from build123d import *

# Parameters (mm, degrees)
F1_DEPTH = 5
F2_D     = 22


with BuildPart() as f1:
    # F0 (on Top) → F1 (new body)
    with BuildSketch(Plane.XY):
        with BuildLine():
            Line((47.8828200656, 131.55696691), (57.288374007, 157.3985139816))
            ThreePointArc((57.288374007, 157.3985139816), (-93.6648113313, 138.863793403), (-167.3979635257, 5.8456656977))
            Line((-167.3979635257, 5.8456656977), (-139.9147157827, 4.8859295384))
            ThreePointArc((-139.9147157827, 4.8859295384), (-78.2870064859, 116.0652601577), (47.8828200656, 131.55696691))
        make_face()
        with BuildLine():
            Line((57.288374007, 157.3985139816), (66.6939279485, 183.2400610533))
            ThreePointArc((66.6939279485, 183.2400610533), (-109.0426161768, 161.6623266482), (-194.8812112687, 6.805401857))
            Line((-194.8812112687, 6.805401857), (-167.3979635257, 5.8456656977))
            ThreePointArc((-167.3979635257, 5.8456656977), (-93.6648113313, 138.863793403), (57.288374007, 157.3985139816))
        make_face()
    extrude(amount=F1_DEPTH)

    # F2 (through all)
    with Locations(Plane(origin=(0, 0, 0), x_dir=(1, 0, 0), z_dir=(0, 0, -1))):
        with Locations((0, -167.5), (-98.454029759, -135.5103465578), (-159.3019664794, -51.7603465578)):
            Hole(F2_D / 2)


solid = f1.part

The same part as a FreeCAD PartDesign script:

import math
import FreeCAD as App
import Part
import Sketcher
from FreeCAD import Vector
Q = App.Units.Quantity

doc = App.newDocument("Part")
body = doc.addObject("PartDesign::Body", "Body")

# Sketch on XY plane
sketch1 = body.newObject("Sketcher::SketchObject", "Sketch")
sketch1.AttachmentSupport = (doc.getObject("XY_Plane"), [""])
sketch1.MapMode = "FlatFace"
sketch1.addGeometry(Part.LineSegment(Vector(48, 132, 0), Vector(57, 157, 0)), False)
sketch1.addGeometry(Part.LineSegment(Vector(57, 157, 0), Vector(67, 183, 0)), False)
sketch1.addGeometry(Part.ArcOfCircle(Part.Circle(Vector(0, 0, 0), Vector(0, 0, 1), 195), math.radians(70), math.radians(178)), False)
sketch1.addGeometry(Part.LineSegment(Vector(-195, 7, 0), Vector(-140, 5, 0)), False)
sketch1.addGeometry(Part.ArcOfCircle(Part.Circle(Vector(0, 0, 0), Vector(0, 0, 1), 140), math.radians(70), math.radians(178)), False)
sketch1.addConstraint(Sketcher.Constraint("Coincident", 0, 2, 1, 1))
sketch1.addConstraint(Sketcher.Constraint("Coincident", 1, 2, 2, 1))
sketch1.addConstraint(Sketcher.Constraint("Coincident", 2, 2, 3, 1))
sketch1.addConstraint(Sketcher.Constraint("Coincident", 3, 2, 4, 2))
sketch1.addConstraint(Sketcher.Constraint("Coincident", 4, 1, 0, 1))
sketch1.addConstraint(Sketcher.Constraint("Coincident", 2, 3, -1, 1))
sketch1.addConstraint(Sketcher.Constraint("Coincident", 4, 3, -1, 1))
sketch1.addConstraint(Sketcher.Constraint("Parallel", 0, 1))
sketch1.addConstraint(Sketcher.Constraint("Equal", 0, 1))
sketch1.addConstraint(Sketcher.Constraint("Radius", 2, Q("195 mm")))
sketch1.addConstraint(Sketcher.Constraint("Radius", 4, Q("140 mm")))
sketch1.addConstraint(Sketcher.Constraint("Angle", 0, Q("70 deg")))
sketch1.addConstraint(Sketcher.Constraint("Angle", 3, Q("-2 deg")))
sketch1.addConstraint(Sketcher.Constraint("DistanceY", -1, 1, 2, 2, Q("6.805402 mm")))
sketch1.addConstraint(Sketcher.Constraint("DistanceY", -1, 1, 1, 2, Q("183.240061 mm")))
pad1 = body.newObject("PartDesign::Pad", "Pad")
pad1.Profile = sketch1
pad1.Length = 5

# Sketch on XY plane
sketch2 = body.newObject("Sketcher::SketchObject", "Sketch001")
sketch2.AttachmentSupport = (doc.getObject("XY_Plane"), [""])
sketch2.MapMode = "FlatFace"
sketch2.addGeometry(Part.Circle(Vector(0, 168, 0), Vector(0, 0, 1), 11), False)
sketch2.addGeometry(Part.Circle(Vector(-98, 136, 0), Vector(0, 0, 1), 11), False)
sketch2.addGeometry(Part.Circle(Vector(-159, 52, 0), Vector(0, 0, 1), 11), False)
sketch2.addConstraint(Sketcher.Constraint("Equal", 0, 1))
sketch2.addConstraint(Sketcher.Constraint("Equal", 1, 2))
sketch2.addConstraint(Sketcher.Constraint("PointOnObject", 0, 3, -2))
sketch2.addConstraint(Sketcher.Constraint("Diameter", 0, Q("22 mm")))
sketch2.addConstraint(Sketcher.Constraint("DistanceY", -1, 1, 0, 3, Q("167.5 mm")))
sketch2.addConstraint(Sketcher.Constraint("DistanceY", 2, 3, 1, 3, Q("83.75 mm")))
sketch2.addConstraint(Sketcher.Constraint("DistanceX", 1, 3, -1, 1, Q("98.45403 mm")))
sketch2.addConstraint(Sketcher.Constraint("DistanceY", -1, 1, 1, 3, Q("135.510347 mm")))
sketch2.addConstraint(Sketcher.Constraint("DistanceX", 2, 3, -1, 1, Q("159.301966 mm")))
doc.recompute()
hole = body.newObject("PartDesign::Hole", "Hole")
hole.Profile = sketch2
hole.ThreadType = "None"
hole.Diameter = 22
hole.DepthType = "ThroughAll"
hole.Reversed = True

doc.recompute()
